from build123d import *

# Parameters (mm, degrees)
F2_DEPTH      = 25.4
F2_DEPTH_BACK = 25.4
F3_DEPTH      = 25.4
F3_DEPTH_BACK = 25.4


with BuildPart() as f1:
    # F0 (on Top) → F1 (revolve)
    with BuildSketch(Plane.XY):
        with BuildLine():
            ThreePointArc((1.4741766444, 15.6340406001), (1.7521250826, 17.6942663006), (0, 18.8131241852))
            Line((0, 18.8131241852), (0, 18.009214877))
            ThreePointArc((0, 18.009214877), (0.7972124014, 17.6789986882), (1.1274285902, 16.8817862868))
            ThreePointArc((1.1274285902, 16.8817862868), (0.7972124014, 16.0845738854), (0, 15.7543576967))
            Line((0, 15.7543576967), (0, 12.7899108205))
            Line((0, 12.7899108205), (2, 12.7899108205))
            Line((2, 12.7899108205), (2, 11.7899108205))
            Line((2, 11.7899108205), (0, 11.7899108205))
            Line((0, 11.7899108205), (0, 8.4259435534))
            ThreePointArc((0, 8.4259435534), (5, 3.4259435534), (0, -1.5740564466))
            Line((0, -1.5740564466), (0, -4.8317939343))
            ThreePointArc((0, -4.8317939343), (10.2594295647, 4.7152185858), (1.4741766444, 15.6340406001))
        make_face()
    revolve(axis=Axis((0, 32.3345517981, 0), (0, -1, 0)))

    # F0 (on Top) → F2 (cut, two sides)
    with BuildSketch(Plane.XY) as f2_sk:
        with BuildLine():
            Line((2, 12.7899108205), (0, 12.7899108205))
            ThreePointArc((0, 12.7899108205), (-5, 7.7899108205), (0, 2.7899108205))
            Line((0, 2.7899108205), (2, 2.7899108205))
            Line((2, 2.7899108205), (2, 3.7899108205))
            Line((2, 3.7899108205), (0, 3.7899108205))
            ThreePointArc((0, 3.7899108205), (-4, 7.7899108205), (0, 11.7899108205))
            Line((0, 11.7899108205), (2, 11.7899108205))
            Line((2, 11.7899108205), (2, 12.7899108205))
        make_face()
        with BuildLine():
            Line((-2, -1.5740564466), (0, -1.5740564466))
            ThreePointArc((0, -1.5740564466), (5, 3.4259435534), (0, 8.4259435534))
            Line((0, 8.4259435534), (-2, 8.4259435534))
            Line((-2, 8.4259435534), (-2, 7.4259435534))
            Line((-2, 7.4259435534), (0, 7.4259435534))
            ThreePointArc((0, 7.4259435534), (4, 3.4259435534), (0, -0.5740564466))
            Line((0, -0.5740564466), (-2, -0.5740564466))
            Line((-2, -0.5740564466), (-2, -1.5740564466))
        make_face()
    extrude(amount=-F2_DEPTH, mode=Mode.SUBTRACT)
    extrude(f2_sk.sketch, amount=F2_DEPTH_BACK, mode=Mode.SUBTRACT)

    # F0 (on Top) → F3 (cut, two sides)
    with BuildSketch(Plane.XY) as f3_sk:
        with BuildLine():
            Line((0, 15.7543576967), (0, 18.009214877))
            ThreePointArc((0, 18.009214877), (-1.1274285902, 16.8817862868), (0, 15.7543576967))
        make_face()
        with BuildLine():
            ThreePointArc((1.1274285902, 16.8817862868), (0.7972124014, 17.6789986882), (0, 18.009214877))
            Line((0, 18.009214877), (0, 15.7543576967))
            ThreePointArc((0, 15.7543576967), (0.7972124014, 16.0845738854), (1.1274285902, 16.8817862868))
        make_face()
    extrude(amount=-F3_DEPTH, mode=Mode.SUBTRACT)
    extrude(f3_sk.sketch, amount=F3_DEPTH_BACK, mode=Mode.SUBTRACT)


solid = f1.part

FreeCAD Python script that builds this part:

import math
import FreeCAD as App
import Part
import Sketcher
from FreeCAD import Vector

doc = App.newDocument("Part")
params = doc.addObject("Spreadsheet::Sheet", "Params")
for row, (alias, value) in enumerate([
    ("sketch1_radius", "5 mm"),
    ("sketch1_width", "2 mm"),
    ("sketch1_height", "1 mm"),
    ("revolution_angle", "360 deg"),
    ("sketch2_radius", "5 mm"),
    ("sketch2_radius2", "4 mm"),
    ("sketch2_width", "2 mm"),
], start=1):
    params.set(f"A{row}", alias)
    params.set(f"B{row}", "=" + value)
    params.setAlias(f"B{row}", alias)

body = doc.addObject("PartDesign::Body", "Body")

sketch1 = body.newObject("Sketcher::SketchObject", "Sketch")
sketch1.AttachmentSupport = (doc.getObject("XY_Plane"), [""])
sketch1.MapMode = "FlatFace"
sketch1.addGeometry(Part.ArcOfCircle(Part.Circle(Vector(0, 16.9, 0), Vector(0, 0, 1), 1.9), math.radians(-40), math.radians(90)), False)
sketch1.addGeometry(Part.LineSegment(Vector(0, 18.8, 0), Vector(0, 18, 0)), False)
sketch1.addGeometry(Part.ArcOfCircle(Part.Circle(Vector(0, 16.9, 0), Vector(0, 0, 1), 1.1), math.radians(0), math.radians(90)), False)
sketch1.addGeometry(Part.ArcOfCircle(Part.Circle(Vector(0, 16.9, 0), Vector(0, 0, 1), 1.1), math.radians(-90), math.radians(0)), False)
sketch1.addGeometry(Part.LineSegment(Vector(0, 15.8, 0), Vector(0, 12.8, 0)), False)
sketch1.addGeometry(Part.LineSegment(Vector(0, 12.8, 0), Vector(2, 12.8, 0)), False)
sketch1.addGeometry(Part.LineSegment(Vector(2, 12.8, 0), Vector(2, 11.8, 0)), False)
sketch1.addGeometry(Part.LineSegment(Vector(2, 11.8, 0), Vector(0, 11.8, 0)), False)
sketch1.addGeometry(Part.LineSegment(Vector(0, 11.8, 0), Vector(0, 8.4, 0)), False)
sketch1.addGeometry(Part.ArcOfCircle(Part.Circle(Vector(0, 3.4, 0), Vector(0, 0, 1), 5), math.radians(-90), math.radians(90)), False)
sketch1.addGeometry(Part.LineSegment(Vector(0, -1.6, 0), Vector(0, -4.8, 0)), False)
sketch1.addGeometry(Part.ArcOfCircle(Part.Circle(Vector(0, 5.5, 0), Vector(0, 0, 1), 10.3), math.radians(-90), math.radians(82)), False)
sketch1.addConstraint(Sketcher.Constraint("Coincident", 0, 2, 1, 1))
sketch1.addConstraint(Sketcher.Constraint("Coincident", 1, 2, 2, 2))
sketch1.addConstraint(Sketcher.Constraint("Tangent", 2, 1, 3, 2))
sketch1.addConstraint(Sketcher.Constraint("Coincident", 3, 1, 4, 1))
sketch1.addConstraint(Sketcher.Constraint("Coincident", 4, 2, 5, 1))
sketch1.addConstraint(Sketcher.Constraint("Coincident", 5, 2, 6, 1))
sketch1.addConstraint(Sketcher.Constraint("Coincident", 6, 2, 7, 1))
sketch1.addConstraint(Sketcher.Constraint("Coincident", 7, 2, 8, 1))
sketch1.addConstraint(Sketcher.Constraint("Coincident", 8, 2, 9, 2))
sketch1.addConstraint(Sketcher.Constraint("Coincident", 9, 1, 10, 1))
sketch1.addConstraint(Sketcher.Constraint("Coincident", 10, 2, 11, 1))
sketch1.addConstraint(Sketcher.Constraint("Coincident", 11, 2, 0, 1))
sketch1.addConstraint(Sketcher.Constraint("Vertical", 1))
sketch1.addConstraint(Sketcher.Constraint("Vertical", 4))
sketch1.addConstraint(Sketcher.Constraint("Horizontal", 5))
sketch1.addConstraint(Sketcher.Constraint("Vertical", 6))
sketch1.addConstraint(Sketcher.Constraint("Horizontal", 7))
sketch1.addConstraint(Sketcher.Constraint("Vertical", 8))
sketch1.addConstraint(Sketcher.Constraint("Vertical", 10))
sketch1.addConstraint(Sketcher.Constraint("Coincident", 2, 3, 0, 3))
sketch1.addConstraint(Sketcher.Constraint("Equal", 2, 3))
sketch1.addConstraint(Sketcher.Constraint("PointOnObject", 0, 3, -2))
sketch1.addConstraint(Sketcher.Constraint("PointOnObject", 9, 3, -2))
sketch1.addConstraint(Sketcher.Constraint("PointOnObject", 11, 3, -2))
sketch1.addConstraint(Sketcher.Constraint("PointOnObject", 0, 2, -2))
sketch1.addConstraint(Sketcher.Constraint("PointOnObject", 3, 1, -2))
sketch1.addConstraint(Sketcher.Constraint("PointOnObject", 7, 2, -2))
sketch1.addConstraint(Sketcher.Constraint("PointOnObject", 9, 1, -2))
sketch1.addConstraint(Sketcher.Constraint("Horizontal", 3, 3, 2, 1))
sketch1.addConstraint(Sketcher.Constraint("Radius", 9, 5.0))
sketch1.addConstraint(Sketcher.Constraint("DistanceX", 5, 1, 5, 2, 2.0))
sketch1.addConstraint(Sketcher.Constraint("DistanceY", 6, 2, 6, 1, 1.0))
sketch1.addConstraint(Sketcher.Constraint("Radius", 2, 1.127429))
sketch1.addConstraint(Sketcher.Constraint("Radius", 11, 10.286011))
sketch1.addConstraint(Sketcher.Constraint("Radius", 0, 1.931338))
sketch1.addConstraint(Sketcher.Constraint("DistanceY", 11, 3, 1, 2, 12.554998))
sketch1.addConstraint(Sketcher.Constraint("DistanceY", 4, 2, 4, 1, 2.964447))
sketch1.addConstraint(Sketcher.Constraint("DistanceY", 8, 2, 8, 1, 3.363967))
sketch1.addConstraint(Sketcher.Constraint("DistanceY", -1, 1, 4, 2, 12.789911))
sketch1.setExpression("Constraints[29]", "Params.sketch1_radius")
sketch1.setExpression("Constraints[30]", "Params.sketch1_width")
sketch1.setExpression("Constraints[31]", "Params.sketch1_height")
revolution = body.newObject("PartDesign::Revolution", "Revolution")
revolution.Profile = sketch1
revolution.ReferenceAxis = (sketch1, ["V_Axis"])
revolution.setExpression("Angle", "Params.revolution_angle")

sketch2 = body.newObject("Sketcher::SketchObject", "Sketch001")
sketch2.AttachmentSupport = (doc.getObject("XY_Plane"), [""])
sketch2.MapMode = "FlatFace"
sketch2.addGeometry(Part.LineSegment(Vector(2, 12.8, 0), Vector(0, 12.8, 0)), False)
sketch2.addGeometry(Part.ArcOfCircle(Part.Circle(Vector(0, 7.8, 0), Vector(0, 0, 1), 5), math.radians(90), math.radians(270)), False)
sketch2.addGeometry(Part.LineSegment(Vector(0, 2.8, 0), Vector(2, 2.8, 0)), False)
sketch2.addGeometry(Part.LineSegment(Vector(2, 2.8, 0), Vector(2, 3.8, 0)), False)
sketch2.addGeometry(Part.LineSegment(Vector(2, 3.8, 0), Vector(0, 3.8, 0)), False)
sketch2.addGeometry(Part.ArcOfCircle(Part.Circle(Vector(0, 7.8, 0), Vector(0, 0, 1), 4), math.radians(90), math.radians(270)), False)
sketch2.addGeometry(Part.LineSegment(Vector(0, 11.8, 0), Vector(2, 11.8, 0)), False)
sketch2.addGeometry(Part.LineSegment(Vector(2, 11.8, 0), Vector(2, 12.8, 0)), False)
sketch2.addGeometry(Part.LineSegment(Vector(-2, -1.6, 0), Vector(0, -1.6, 0)), False)
sketch2.addGeometry(Part.ArcOfCircle(Part.Circle(Vector(0, 3.4, 0), Vector(0, 0, 1), 5), math.radians(-90), math.radians(90)), False)
sketch2.addGeometry(Part.LineSegment(Vector(0, 8.4, 0), Vector(-2, 8.4, 0)), False)
sketch2.addGeometry(Part.LineSegment(Vector(-2, 8.4, 0), Vector(-2, 7.4, 0)), False)
sketch2.addGeometry(Part.LineSegment(Vector(-2, 7.4, 0), Vector(0, 7.4, 0)), False)
sketch2.addGeometry(Part.ArcOfCircle(Part.Circle(Vector(0, 3.4, 0), Vector(0, 0, 1), 4), math.radians(-90), math.radians(90)), False)
sketch2.addGeometry(Part.LineSegment(Vector(0, -0.6, 0), Vector(-2, -0.6, 0)), False)
sketch2.addGeometry(Part.LineSegment(Vector(-2, -0.6, 0), Vector(-2, -1.6, 0)), False)
sketch2.addConstraint(Sketcher.Constraint("Tangent", 0, 2, 1, 1))
sketch2.addConstraint(Sketcher.Constraint("Tangent", 1, 2, 2, 1))
sketch2.addConstraint(Sketcher.Constraint("Coincident", 2, 2, 3, 1))
sketch2.addConstraint(Sketcher.Constraint("Coincident", 3, 2, 4, 1))
sketch2.addConstraint(Sketcher.Constraint("Tangent", 4, 2, 5, 2))
sketch2.addConstraint(Sketcher.Constraint("Tangent", 5, 1, 6, 1))
sketch2.addConstraint(Sketcher.Constraint("Coincident", 6, 2, 7, 1))
sketch2.addConstraint(Sketcher.Constraint("Coincident", 7, 2, 0, 1))
sketch2.addConstraint(Sketcher.Constraint("Tangent", 8, 2, 9, 1))
sketch2.addConstraint(Sketcher.Constraint("Tangent", 9, 2, 10, 1))
sketch2.addConstraint(Sketcher.Constraint("Coincident", 10, 2, 11, 1))
sketch2.addConstraint(Sketcher.Constraint("Coincident", 11, 2, 12, 1))
sketch2.addConstraint(Sketcher.Constraint("Tangent", 12, 2, 13, 2))
sketch2.addConstraint(Sketcher.Constraint("Tangent", 13, 1, 14, 1))
sketch2.addConstraint(Sketcher.Constraint("Coincident", 14, 2, 15, 1))
sketch2.addConstraint(Sketcher.Constraint("Coincident", 15, 2, 8, 1))
sketch2.addConstraint(Sketcher.Constraint("Horizontal", 0))
sketch2.addConstraint(Sketcher.Constraint("Horizontal", 2))
sketch2.addConstraint(Sketcher.Constraint("Vertical", 3))
sketch2.addConstraint(Sketcher.Constraint("Horizontal", 4))
sketch2.addConstraint(Sketcher.Constraint("Horizontal", 6))
sketch2.addConstraint(Sketcher.Constraint("Vertical", 7))
sketch2.addConstraint(Sketcher.Constraint("Horizontal", 8))
sketch2.addConstraint(Sketcher.Constraint("Horizontal", 10))
sketch2.addConstraint(Sketcher.Constraint("Vertical", 11))
sketch2.addConstraint(Sketcher.Constraint("Horizontal", 12))
sketch2.addConstraint(Sketcher.Constraint("Horizontal", 14))
sketch2.addConstraint(Sketcher.Constraint("Vertical", 15))
sketch2.addConstraint(Sketcher.Constraint("Coincident", 5, 3, 1, 3))
sketch2.addConstraint(Sketcher.Constraint("Coincident", 13, 3, 9, 3))
sketch2.addConstraint(Sketcher.Constraint("Equal", 1, 9))
sketch2.addConstraint(Sketcher.Constraint("Equal", 5, 13))
sketch2.addConstraint(Sketcher.Constraint("PointOnObject", 1, 3, -2))
sketch2.addConstraint(Sketcher.Constraint("PointOnObject", 9, 3, -2))
sketch2.addConstraint(Sketcher.Constraint("Vertical", 3, 2, 6, 2))
sketch2.addConstraint(Sketcher.Constraint("Vertical", 11, 2, 14, 2))
sketch2.addConstraint(Sketcher.Constraint("Equal", 6, 8))
sketch2.addConstraint(Sketcher.Constraint("Radius", 1, 5.0))
sketch2.addConstraint(Sketcher.Constraint("Radius", 5, 4.0))
sketch2.addConstraint(Sketcher.Constraint("DistanceX", 0, 2, 0, 1, 2.0))
sketch2.addConstraint(Sketcher.Constraint("DistanceY", -1, 1, 1, 3, 7.789911))
sketch2.addConstraint(Sketcher.Constraint("DistanceY", -1, 1, 9, 3, 3.425944))
sketch2.setExpression("Constraints[37]", "Params.sketch2_radius")
sketch2.setExpression("Constraints[38]", "Params.sketch2_radius2")
sketch2.setExpression("Constraints[39]", "Params.sketch2_width")
pocket1 = body.newObject("PartDesign::Pocket", "Pocket")
pocket1.Profile = sketch2
pocket1.Type = "ThroughAll"
pocket1.Midplane = True

sketch3 = body.newObject("Sketcher::SketchObject", "Sketch002")
sketch3.AttachmentSupport = (doc.getObject("XY_Plane"), [""])
sketch3.MapMode = "FlatFace"
sketch3.addGeometry(Part.ArcOfCircle(Part.Circle(Vector(0, 16.9, 0), Vector(0, 0, 1), 1.1), math.radians(90), math.radians(270)), False)
sketch3.addGeometry(Part.ArcOfCircle(Part.Circle(Vector(0, 16.9, 0), Vector(0, 0, 1), 1.1), math.radians(-90), math.radians(0)), False)
sketch3.addGeometry(Part.ArcOfCircle(Part.Circle(Vector(0, 16.9, 0), Vector(0, 0, 1), 1.1), math.radians(0), math.radians(90)), False)
sketch3.addConstraint(Sketcher.Constraint("Tangent", 0, 2, 1, 1))
sketch3.addConstraint(Sketcher.Constraint("Tangent", 1, 2, 2, 1))
sketch3.addConstraint(Sketcher.Constraint("Tangent", 2, 2, 0, 1))
sketch3.addConstraint(Sketcher.Constraint("PointOnObject", 0, 3, -2))
sketch3.addConstraint(Sketcher.Constraint("PointOnObject", 0, 2, -2))
sketch3.addConstraint(Sketcher.Constraint("PointOnObject", 2, 2, -2))
sketch3.addConstraint(Sketcher.Constraint("Horizontal", 2, 3, 1, 2))
sketch3.addConstraint(Sketcher.Constraint("Radius", 0, 1.127429))
sketch3.addConstraint(Sketcher.Constraint("DistanceY", -1, 1, 0, 3, 16.881786))
pocket2 = body.newObject("PartDesign::Pocket", "Pocket001")
pocket2.Profile = sketch3
pocket2.Type = "ThroughAll"
pocket2.Midplane = True

doc.recompute()
